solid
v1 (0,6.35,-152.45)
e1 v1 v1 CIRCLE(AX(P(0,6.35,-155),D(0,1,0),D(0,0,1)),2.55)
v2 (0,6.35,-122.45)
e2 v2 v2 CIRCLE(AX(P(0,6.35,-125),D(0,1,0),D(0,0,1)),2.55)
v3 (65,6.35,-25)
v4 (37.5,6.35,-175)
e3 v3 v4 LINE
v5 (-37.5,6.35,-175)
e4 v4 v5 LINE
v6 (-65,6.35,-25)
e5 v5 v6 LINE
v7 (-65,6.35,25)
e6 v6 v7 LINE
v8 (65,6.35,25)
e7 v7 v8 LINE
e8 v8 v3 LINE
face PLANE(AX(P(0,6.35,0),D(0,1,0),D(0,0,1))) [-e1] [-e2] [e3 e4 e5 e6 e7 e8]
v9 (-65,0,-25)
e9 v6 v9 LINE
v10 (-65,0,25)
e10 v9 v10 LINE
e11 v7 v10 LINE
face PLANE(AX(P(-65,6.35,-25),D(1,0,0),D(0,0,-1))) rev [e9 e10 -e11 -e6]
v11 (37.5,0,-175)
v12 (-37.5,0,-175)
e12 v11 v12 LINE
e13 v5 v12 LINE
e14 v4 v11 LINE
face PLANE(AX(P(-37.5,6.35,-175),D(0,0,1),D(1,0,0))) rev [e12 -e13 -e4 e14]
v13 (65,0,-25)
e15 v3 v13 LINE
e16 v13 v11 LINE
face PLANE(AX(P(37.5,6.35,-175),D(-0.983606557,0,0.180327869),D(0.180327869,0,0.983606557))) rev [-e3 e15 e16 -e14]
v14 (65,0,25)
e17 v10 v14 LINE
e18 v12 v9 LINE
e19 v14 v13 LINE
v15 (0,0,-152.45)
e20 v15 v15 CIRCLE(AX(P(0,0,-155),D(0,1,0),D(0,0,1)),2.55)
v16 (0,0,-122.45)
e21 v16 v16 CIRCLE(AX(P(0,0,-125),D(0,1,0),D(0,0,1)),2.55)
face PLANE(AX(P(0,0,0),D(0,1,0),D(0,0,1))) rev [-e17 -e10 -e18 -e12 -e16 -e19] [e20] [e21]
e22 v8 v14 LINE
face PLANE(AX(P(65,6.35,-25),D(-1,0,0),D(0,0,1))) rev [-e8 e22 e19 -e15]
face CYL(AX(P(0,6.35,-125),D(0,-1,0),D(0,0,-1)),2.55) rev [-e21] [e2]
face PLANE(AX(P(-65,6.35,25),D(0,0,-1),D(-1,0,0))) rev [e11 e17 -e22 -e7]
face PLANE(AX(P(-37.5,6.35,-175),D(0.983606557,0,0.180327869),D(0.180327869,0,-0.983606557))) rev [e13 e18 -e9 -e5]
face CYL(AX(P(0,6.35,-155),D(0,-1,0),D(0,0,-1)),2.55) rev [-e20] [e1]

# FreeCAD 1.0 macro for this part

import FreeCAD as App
import Part
import Sketcher
Q = App.Units.Quantity

doc = App.newDocument("Part")
body = doc.addObject("PartDesign::Body", "Body")

# Sketch on XZ plane
sketch1 = body.newObject("Sketcher::SketchObject", "Sketch")
sketch1.AttachmentSupport = (doc.getObject("XZ_Plane"), [""])
sketch1.MapMode = "FlatFace"
sketch1.addGeometry([
    Part.LineSegment(App.Vector(37.5, -175, 0), App.Vector(-37.5, -175, 0)),  # 0
    Part.LineSegment(App.Vector(-37.5, -175, 0), App.Vector(-65, -25, 0)),  # 1
    Part.LineSegment(App.Vector(-65, -25, 0), App.Vector(-65, 25, 0)),  # 2
    Part.LineSegment(App.Vector(-65, 25, 0), App.Vector(65, 25, 0)),  # 3
    Part.LineSegment(App.Vector(65, 25, 0), App.Vector(65, -25, 0)),  # 4
    Part.LineSegment(App.Vector(65, -25, 0), App.Vector(37.5, -175, 0)),  # 5
    Part.Circle(App.Vector(0, -125, 0), App.Vector(0, 0, 1), 2.5),  # 6
    Part.Circle(App.Vector(0, -155, 0), App.Vector(0, 0, 1), 2.5),  # 7
], False)
sketch1.addConstraint([
    Sketcher.Constraint("Coincident", 0, 2, 1, 1),
    Sketcher.Constraint("Coincident", 1, 2, 2, 1),
    Sketcher.Constraint("Coincident", 2, 2, 3, 1),
    Sketcher.Constraint("Coincident", 3, 2, 4, 1),
    Sketcher.Constraint("Coincident", 4, 2, 5, 1),
    Sketcher.Constraint("Coincident", 5, 2, 0, 1),
    Sketcher.Constraint("Horizontal", 0),
    Sketcher.Constraint("Vertical", 2),
    Sketcher.Constraint("Horizontal", 3),
    Sketcher.Constraint("Vertical", 4),
    Sketcher.Constraint("Equal", 6, 7),
    Sketcher.Constraint("Symmetric", 1, 2, 3, 2, -1, 1),
    Sketcher.Constraint("PointOnObject", 6, 3, -2),
    Sketcher.Constraint("PointOnObject", 7, 3, -2),
    Sketcher.Constraint("Horizontal", 1, 2, 4, 2),
    Sketcher.Constraint("Equal", 1, 5),
    Sketcher.Constraint("Diameter", 6, Q("5.1 mm")),
    Sketcher.Constraint("DistanceX", 0, 2, 0, 1, Q("75 mm")),
    Sketcher.Constraint("DistanceX", 3, 1, 3, 2, Q("130 mm")),
    Sketcher.Constraint("DistanceY", 2, 1, 2, 2, Q("50 mm")),
    Sketcher.Constraint("DistanceY", 6, 3, -1, 1, Q("125 mm")),
    Sketcher.Constraint("DistanceY", 7, 3, -1, 1, Q("155 mm")),
    Sketcher.Constraint("DistanceY", 0, 2, -1, 1, Q("175 mm")),
])
pad1 = body.newObject("PartDesign::Pad", "Pad")
pad1.Profile = sketch1
pad1.Length = 6.35
pad1.Reversed = True

doc.recompute()
